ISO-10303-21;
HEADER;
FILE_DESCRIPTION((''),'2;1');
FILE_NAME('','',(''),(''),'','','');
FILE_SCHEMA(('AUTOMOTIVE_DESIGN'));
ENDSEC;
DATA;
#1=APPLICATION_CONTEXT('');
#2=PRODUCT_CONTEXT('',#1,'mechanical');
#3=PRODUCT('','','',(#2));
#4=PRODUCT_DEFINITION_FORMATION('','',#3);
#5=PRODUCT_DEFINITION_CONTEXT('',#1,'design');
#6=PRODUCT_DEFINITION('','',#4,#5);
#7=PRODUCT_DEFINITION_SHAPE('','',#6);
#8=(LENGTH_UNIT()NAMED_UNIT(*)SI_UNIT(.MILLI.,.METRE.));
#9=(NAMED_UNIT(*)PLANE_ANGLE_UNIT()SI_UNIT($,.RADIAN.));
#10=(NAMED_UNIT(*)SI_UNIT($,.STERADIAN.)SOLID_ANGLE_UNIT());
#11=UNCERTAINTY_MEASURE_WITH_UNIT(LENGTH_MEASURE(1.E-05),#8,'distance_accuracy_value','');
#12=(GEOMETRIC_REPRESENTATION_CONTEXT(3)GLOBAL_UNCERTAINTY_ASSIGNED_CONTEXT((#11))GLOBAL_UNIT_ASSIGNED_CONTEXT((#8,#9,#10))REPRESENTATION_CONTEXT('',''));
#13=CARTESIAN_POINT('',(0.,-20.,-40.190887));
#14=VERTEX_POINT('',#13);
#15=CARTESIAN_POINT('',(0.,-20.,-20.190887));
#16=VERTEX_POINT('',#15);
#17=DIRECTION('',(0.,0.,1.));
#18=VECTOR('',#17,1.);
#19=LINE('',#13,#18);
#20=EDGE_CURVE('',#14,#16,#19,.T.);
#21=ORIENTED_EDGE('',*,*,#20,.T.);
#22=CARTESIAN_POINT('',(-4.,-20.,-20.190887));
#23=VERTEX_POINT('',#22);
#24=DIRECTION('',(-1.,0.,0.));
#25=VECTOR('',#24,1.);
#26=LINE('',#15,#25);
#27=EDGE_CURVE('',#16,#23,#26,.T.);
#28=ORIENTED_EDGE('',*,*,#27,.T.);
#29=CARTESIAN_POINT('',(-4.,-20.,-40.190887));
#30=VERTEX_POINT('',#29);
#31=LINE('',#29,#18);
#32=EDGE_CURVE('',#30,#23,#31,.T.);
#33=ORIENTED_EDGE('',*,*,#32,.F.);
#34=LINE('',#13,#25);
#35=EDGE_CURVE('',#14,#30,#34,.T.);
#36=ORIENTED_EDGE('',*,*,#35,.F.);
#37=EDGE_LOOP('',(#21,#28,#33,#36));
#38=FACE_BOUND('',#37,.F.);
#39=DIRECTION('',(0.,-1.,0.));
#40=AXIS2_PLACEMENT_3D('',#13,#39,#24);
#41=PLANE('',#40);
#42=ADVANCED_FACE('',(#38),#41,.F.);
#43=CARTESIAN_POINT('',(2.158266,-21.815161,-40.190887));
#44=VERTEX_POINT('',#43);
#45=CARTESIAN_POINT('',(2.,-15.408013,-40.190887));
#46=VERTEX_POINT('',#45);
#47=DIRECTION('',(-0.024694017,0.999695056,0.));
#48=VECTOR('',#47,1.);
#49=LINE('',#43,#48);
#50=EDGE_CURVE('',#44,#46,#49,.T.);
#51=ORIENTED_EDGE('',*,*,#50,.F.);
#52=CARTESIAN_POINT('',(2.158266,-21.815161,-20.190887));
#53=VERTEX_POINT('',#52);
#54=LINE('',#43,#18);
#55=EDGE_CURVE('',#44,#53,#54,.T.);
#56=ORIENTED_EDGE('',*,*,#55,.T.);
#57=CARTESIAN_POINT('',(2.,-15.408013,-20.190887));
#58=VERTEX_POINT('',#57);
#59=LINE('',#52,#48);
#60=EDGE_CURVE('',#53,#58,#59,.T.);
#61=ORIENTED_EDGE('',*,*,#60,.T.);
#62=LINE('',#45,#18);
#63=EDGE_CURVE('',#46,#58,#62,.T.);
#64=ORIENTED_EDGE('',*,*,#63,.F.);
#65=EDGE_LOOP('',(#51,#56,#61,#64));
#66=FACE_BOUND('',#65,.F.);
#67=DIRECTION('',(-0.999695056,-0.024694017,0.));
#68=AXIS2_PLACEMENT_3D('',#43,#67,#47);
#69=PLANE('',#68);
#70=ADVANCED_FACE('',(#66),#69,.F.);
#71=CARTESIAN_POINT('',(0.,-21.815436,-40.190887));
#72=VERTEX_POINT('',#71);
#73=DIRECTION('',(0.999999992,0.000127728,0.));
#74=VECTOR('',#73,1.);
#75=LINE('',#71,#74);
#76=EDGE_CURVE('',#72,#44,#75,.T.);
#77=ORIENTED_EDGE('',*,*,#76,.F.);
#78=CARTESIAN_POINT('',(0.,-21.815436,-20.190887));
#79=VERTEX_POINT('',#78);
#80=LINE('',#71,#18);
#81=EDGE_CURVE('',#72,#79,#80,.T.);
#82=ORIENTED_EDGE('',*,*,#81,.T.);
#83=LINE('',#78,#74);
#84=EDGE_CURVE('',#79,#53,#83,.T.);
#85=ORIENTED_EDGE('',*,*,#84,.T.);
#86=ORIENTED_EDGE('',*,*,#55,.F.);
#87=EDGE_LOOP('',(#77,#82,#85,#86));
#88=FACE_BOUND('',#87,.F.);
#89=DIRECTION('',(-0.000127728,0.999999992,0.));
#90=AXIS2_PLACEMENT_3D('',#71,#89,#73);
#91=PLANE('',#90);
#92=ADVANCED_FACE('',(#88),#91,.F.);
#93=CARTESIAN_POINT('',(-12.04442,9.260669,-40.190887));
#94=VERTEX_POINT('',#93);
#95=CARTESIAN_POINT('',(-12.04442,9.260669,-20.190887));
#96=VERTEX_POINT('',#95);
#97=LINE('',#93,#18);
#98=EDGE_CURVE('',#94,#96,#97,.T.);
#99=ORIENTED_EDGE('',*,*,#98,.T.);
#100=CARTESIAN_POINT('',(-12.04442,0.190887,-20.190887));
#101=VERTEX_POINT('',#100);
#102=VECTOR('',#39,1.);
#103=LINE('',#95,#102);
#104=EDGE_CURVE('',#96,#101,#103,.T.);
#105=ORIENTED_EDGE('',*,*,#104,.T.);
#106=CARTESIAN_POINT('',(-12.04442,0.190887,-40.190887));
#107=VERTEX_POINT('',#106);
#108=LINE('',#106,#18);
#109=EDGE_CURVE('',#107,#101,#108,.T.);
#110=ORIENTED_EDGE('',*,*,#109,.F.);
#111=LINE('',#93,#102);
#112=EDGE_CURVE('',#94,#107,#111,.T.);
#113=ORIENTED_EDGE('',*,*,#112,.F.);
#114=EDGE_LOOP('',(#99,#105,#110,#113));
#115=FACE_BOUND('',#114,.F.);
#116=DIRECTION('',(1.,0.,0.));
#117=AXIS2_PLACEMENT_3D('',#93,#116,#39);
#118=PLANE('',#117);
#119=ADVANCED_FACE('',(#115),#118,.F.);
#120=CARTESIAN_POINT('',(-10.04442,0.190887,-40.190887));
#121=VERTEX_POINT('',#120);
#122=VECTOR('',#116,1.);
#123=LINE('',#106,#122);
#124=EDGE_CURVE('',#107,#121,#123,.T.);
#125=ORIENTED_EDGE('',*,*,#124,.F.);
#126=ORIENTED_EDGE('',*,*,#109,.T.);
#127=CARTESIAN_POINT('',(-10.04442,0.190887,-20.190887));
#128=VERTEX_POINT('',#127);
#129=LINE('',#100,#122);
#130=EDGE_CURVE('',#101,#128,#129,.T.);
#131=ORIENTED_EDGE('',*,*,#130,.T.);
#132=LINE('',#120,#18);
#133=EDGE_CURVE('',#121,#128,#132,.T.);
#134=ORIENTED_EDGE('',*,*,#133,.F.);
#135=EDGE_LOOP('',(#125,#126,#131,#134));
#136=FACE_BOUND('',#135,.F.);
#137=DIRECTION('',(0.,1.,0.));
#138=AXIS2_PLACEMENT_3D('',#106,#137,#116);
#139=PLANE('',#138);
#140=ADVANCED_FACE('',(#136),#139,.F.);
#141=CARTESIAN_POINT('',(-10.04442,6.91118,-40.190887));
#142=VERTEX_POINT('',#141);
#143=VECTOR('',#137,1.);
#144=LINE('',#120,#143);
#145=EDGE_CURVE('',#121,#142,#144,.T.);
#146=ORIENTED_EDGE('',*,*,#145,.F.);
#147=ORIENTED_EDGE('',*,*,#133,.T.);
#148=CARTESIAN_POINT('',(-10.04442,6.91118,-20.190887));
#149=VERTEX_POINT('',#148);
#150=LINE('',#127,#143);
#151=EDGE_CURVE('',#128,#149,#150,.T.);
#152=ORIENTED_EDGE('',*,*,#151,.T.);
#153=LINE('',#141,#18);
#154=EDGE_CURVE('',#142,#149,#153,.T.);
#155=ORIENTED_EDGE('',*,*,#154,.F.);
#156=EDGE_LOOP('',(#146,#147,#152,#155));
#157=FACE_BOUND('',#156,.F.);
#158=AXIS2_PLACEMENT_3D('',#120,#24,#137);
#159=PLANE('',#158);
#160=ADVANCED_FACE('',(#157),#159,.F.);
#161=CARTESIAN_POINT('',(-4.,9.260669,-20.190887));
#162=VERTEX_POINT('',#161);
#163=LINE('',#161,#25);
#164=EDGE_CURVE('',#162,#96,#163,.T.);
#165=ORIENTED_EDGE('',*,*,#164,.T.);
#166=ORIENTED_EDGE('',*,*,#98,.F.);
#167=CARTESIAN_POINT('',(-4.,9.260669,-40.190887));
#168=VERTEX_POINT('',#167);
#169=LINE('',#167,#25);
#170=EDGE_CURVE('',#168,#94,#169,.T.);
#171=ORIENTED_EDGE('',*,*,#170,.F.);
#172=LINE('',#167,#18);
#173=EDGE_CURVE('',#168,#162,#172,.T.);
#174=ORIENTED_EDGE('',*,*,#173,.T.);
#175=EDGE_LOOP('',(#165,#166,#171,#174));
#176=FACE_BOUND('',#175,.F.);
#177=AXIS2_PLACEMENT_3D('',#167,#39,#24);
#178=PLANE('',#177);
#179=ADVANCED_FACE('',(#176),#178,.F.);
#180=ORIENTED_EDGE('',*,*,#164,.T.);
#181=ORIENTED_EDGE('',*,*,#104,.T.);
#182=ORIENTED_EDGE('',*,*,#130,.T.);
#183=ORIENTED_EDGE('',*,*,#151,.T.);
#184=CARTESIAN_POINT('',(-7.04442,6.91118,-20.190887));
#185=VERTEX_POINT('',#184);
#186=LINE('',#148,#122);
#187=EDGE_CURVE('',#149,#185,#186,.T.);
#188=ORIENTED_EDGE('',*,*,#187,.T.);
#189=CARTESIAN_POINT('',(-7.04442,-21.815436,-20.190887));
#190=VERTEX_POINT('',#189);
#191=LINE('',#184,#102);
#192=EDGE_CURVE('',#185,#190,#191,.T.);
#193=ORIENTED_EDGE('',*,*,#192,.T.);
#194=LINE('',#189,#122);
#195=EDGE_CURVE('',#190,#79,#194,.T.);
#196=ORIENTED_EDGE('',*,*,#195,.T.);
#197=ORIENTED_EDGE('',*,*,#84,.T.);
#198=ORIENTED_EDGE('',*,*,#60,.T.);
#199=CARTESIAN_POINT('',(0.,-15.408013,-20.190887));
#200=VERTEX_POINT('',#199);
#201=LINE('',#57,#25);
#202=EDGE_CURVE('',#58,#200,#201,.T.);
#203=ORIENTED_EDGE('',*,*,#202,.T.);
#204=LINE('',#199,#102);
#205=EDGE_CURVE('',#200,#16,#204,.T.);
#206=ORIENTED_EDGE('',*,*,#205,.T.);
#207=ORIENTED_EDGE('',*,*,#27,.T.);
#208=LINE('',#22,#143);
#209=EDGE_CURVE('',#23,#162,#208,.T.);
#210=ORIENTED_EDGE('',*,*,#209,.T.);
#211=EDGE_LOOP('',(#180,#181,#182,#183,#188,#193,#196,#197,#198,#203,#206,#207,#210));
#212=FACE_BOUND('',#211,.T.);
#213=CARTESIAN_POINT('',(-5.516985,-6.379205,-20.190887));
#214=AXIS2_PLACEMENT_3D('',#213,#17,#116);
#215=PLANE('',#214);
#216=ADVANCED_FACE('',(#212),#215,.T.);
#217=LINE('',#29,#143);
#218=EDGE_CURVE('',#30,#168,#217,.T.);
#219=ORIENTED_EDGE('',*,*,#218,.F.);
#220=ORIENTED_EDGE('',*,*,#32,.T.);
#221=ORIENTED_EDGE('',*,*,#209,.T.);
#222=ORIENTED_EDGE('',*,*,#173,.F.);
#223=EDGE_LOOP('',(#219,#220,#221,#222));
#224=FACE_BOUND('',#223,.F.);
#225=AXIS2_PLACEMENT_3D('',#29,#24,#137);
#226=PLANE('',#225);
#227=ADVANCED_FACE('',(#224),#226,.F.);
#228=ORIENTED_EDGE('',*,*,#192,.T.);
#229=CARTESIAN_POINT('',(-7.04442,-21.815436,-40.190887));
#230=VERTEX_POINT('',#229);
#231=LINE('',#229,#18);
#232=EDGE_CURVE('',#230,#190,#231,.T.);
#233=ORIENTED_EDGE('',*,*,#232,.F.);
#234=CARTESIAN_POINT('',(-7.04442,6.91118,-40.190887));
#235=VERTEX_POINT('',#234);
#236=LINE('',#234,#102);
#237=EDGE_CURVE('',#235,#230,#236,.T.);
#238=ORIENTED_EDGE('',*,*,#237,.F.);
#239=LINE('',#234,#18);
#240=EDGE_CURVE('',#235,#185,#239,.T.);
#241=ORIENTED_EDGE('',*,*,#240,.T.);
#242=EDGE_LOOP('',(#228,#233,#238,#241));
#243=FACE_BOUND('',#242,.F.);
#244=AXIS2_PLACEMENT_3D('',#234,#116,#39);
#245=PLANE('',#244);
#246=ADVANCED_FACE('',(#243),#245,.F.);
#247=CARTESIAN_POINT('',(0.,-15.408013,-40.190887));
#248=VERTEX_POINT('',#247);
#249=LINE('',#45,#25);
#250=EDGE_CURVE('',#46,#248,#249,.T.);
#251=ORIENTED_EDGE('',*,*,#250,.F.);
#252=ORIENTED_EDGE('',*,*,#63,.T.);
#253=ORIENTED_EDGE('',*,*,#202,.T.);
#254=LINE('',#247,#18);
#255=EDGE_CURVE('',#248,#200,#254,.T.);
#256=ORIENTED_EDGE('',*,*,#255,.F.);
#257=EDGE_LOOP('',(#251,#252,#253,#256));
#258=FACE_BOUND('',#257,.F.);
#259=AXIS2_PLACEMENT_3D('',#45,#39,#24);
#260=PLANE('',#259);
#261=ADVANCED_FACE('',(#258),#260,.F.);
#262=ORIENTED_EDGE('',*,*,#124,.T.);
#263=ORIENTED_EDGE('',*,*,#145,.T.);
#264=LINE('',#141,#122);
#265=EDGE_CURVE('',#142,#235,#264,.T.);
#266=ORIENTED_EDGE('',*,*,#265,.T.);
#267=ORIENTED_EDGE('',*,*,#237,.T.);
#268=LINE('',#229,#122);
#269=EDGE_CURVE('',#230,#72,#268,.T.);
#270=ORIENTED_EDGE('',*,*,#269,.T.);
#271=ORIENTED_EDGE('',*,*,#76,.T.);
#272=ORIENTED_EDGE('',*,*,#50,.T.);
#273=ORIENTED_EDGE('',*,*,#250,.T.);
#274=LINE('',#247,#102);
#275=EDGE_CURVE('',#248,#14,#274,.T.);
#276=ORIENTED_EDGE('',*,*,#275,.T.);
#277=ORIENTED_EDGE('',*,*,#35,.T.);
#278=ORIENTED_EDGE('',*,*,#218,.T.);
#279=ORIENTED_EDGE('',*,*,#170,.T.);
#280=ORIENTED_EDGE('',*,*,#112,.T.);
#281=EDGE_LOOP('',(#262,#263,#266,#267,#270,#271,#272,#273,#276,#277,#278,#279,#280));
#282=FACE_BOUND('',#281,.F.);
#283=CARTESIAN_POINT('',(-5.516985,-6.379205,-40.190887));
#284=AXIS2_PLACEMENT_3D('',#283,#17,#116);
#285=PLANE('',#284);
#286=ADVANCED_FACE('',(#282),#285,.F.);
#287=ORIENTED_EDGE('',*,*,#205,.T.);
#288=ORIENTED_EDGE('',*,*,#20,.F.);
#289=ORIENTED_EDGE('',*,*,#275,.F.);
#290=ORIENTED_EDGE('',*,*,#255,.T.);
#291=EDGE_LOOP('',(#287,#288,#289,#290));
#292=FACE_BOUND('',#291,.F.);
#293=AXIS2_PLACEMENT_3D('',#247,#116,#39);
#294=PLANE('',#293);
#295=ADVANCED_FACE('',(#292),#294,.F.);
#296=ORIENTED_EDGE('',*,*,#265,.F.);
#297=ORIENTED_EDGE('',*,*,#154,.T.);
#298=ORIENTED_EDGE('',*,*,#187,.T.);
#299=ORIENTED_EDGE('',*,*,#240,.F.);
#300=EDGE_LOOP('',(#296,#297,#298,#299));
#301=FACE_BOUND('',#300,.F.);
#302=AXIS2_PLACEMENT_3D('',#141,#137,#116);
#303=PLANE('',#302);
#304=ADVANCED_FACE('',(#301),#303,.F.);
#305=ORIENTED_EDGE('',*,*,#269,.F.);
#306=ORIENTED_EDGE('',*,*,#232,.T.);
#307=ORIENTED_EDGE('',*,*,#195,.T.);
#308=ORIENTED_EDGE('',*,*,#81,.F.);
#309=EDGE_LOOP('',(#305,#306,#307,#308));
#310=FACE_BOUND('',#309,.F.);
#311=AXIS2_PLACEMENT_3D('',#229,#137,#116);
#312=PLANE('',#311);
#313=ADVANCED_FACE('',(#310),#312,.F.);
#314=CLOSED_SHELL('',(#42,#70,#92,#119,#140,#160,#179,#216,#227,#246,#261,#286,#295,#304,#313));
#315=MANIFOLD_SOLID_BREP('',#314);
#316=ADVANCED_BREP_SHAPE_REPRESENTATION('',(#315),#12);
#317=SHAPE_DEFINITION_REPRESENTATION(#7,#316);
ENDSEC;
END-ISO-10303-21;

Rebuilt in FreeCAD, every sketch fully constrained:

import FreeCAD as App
import Part
import Sketcher

V = App.Vector
Q = App.Units.Quantity


def add_polygon(sketch, points):
    """Adds a closed chain of lines whose ends are joined by coincident constraints."""
    first, n = sketch.GeometryCount, len(points)
    for a, b in zip(points, points[1:] + points[:1]):
        sketch.addGeometry(Part.LineSegment(App.Vector(*a, 0), App.Vector(*b, 0)), False)
    for i in range(n):
        sketch.addConstraint(Sketcher.Constraint("Coincident", first + i, 2, first + (i + 1) % n, 1))

doc = App.newDocument("Part")
params = doc.addObject("Spreadsheet::Sheet", "Params")
for row, (alias, value) in enumerate([
    ("sketch1_width", "3 mm"),
    ("sketch1_width2", "2 mm"),
    ("sketch1_width3", "4 mm"),
    ("pad1_length", "20 mm"),
], start=1):
    params.set(f"A{row}", alias)
    params.set(f"B{row}", "=" + value)
    params.setAlias(f"B{row}", alias)

body = doc.addObject("PartDesign::Body", "Body")

# Sketch on XZ plane
sketch1 = body.newObject("Sketcher::SketchObject", "Sketch")
sketch1.AttachmentSupport = (doc.getObject("XZ_Plane"), [""])
sketch1.MapMode = "FlatFace"
add_polygon(sketch1, [(-10, 6.7), (-7, 6.7), (-7, -22), (0, -22), (2.2, -22), (2, -15.6), (0, -15.6), (0, -20.2), (-4, -20.2), (-4, 9.1), (-12, 9.1), (-12, 0), (-10, 0)])  # lines 0-12
sketch1.addConstraint(Sketcher.Constraint("Horizontal", 0))
sketch1.addConstraint(Sketcher.Constraint("Vertical", 1))
sketch1.addConstraint(Sketcher.Constraint("Horizontal", 2))
sketch1.addConstraint(Sketcher.Constraint("Horizontal", 5))
sketch1.addConstraint(Sketcher.Constraint("Vertical", 6))
sketch1.addConstraint(Sketcher.Constraint("Horizontal", 7))
sketch1.addConstraint(Sketcher.Constraint("Vertical", 8))
sketch1.addConstraint(Sketcher.Constraint("Horizontal", 9))
sketch1.addConstraint(Sketcher.Constraint("Vertical", 10))
sketch1.addConstraint(Sketcher.Constraint("Horizontal", 11))
sketch1.addConstraint(Sketcher.Constraint("Vertical", 12))
sketch1.addConstraint(Sketcher.Constraint("PointOnObject", 2, 2, -2))
sketch1.addConstraint(Sketcher.Constraint("PointOnObject", 5, 2, -2))
sketch1.addConstraint(Sketcher.Constraint("PointOnObject", 10, 2, -1))
sketch1.addConstraint(Sketcher.Constraint("Equal", 5, 11))
sketch1.addConstraint(Sketcher.Constraint("DistanceX", 0, 1, 0, 2, Q("3 mm")))
sketch1.addConstraint(Sketcher.Constraint("DistanceX", 5, 2, 5, 1, Q("2 mm")))
sketch1.addConstraint(Sketcher.Constraint("DistanceX", 7, 2, 7, 1, Q("4 mm")))
sketch1.addConstraint(Sketcher.Constraint("DistanceX", 2, 1, 2, 2, Q("7.04442 mm")))
sketch1.addConstraint(Sketcher.Constraint("DistanceY", 8, 1, 8, 2, Q("29.260669 mm")))
sketch1.addConstraint(Sketcher.Constraint("DistanceY", 10, 2, 10, 1, Q("9.069782 mm")))
sketch1.addConstraint(Sketcher.Constraint("DistanceY", 4, 2, -1, 1, Q("15.5989 mm")))
sketch1.addConstraint(Sketcher.Constraint("DistanceY", 1, 2, 1, 1, Q("28.726616 mm")))
sketch1.addConstraint(Sketcher.Constraint("DistanceY", 12, 1, 12, 2, Q("6.720292 mm")))
sketch1.addConstraint(Sketcher.Constraint("DistanceY", 3, 2, 0, 2, Q("28.72634 mm")))
sketch1.addConstraint(Sketcher.Constraint("Distance", 3, Q("2.158267 mm")))
sketch1.setExpression("Constraints[28]", "Params.sketch1_width")
sketch1.setExpression("Constraints[29]", "Params.sketch1_width2")
sketch1.setExpression("Constraints[30]", "Params.sketch1_width3")
pad1 = body.newObject("PartDesign::Pad", "Pad")
pad1.Profile = sketch1
pad1.setExpression("Length", "Params.pad1_length")
body2 = doc.addObject("PartDesign::Body", "Body001")
doc.recompute()

body.Placement = App.Placement(V(0, 0.190887, -40.190887), App.Rotation(V(1, 0, 0), 270))
boolean = body2.newObject("PartDesign::Boolean", "Boolean")
boolean.Type = "Fuse"
boolean.addObjects([body])

doc.recompute()
